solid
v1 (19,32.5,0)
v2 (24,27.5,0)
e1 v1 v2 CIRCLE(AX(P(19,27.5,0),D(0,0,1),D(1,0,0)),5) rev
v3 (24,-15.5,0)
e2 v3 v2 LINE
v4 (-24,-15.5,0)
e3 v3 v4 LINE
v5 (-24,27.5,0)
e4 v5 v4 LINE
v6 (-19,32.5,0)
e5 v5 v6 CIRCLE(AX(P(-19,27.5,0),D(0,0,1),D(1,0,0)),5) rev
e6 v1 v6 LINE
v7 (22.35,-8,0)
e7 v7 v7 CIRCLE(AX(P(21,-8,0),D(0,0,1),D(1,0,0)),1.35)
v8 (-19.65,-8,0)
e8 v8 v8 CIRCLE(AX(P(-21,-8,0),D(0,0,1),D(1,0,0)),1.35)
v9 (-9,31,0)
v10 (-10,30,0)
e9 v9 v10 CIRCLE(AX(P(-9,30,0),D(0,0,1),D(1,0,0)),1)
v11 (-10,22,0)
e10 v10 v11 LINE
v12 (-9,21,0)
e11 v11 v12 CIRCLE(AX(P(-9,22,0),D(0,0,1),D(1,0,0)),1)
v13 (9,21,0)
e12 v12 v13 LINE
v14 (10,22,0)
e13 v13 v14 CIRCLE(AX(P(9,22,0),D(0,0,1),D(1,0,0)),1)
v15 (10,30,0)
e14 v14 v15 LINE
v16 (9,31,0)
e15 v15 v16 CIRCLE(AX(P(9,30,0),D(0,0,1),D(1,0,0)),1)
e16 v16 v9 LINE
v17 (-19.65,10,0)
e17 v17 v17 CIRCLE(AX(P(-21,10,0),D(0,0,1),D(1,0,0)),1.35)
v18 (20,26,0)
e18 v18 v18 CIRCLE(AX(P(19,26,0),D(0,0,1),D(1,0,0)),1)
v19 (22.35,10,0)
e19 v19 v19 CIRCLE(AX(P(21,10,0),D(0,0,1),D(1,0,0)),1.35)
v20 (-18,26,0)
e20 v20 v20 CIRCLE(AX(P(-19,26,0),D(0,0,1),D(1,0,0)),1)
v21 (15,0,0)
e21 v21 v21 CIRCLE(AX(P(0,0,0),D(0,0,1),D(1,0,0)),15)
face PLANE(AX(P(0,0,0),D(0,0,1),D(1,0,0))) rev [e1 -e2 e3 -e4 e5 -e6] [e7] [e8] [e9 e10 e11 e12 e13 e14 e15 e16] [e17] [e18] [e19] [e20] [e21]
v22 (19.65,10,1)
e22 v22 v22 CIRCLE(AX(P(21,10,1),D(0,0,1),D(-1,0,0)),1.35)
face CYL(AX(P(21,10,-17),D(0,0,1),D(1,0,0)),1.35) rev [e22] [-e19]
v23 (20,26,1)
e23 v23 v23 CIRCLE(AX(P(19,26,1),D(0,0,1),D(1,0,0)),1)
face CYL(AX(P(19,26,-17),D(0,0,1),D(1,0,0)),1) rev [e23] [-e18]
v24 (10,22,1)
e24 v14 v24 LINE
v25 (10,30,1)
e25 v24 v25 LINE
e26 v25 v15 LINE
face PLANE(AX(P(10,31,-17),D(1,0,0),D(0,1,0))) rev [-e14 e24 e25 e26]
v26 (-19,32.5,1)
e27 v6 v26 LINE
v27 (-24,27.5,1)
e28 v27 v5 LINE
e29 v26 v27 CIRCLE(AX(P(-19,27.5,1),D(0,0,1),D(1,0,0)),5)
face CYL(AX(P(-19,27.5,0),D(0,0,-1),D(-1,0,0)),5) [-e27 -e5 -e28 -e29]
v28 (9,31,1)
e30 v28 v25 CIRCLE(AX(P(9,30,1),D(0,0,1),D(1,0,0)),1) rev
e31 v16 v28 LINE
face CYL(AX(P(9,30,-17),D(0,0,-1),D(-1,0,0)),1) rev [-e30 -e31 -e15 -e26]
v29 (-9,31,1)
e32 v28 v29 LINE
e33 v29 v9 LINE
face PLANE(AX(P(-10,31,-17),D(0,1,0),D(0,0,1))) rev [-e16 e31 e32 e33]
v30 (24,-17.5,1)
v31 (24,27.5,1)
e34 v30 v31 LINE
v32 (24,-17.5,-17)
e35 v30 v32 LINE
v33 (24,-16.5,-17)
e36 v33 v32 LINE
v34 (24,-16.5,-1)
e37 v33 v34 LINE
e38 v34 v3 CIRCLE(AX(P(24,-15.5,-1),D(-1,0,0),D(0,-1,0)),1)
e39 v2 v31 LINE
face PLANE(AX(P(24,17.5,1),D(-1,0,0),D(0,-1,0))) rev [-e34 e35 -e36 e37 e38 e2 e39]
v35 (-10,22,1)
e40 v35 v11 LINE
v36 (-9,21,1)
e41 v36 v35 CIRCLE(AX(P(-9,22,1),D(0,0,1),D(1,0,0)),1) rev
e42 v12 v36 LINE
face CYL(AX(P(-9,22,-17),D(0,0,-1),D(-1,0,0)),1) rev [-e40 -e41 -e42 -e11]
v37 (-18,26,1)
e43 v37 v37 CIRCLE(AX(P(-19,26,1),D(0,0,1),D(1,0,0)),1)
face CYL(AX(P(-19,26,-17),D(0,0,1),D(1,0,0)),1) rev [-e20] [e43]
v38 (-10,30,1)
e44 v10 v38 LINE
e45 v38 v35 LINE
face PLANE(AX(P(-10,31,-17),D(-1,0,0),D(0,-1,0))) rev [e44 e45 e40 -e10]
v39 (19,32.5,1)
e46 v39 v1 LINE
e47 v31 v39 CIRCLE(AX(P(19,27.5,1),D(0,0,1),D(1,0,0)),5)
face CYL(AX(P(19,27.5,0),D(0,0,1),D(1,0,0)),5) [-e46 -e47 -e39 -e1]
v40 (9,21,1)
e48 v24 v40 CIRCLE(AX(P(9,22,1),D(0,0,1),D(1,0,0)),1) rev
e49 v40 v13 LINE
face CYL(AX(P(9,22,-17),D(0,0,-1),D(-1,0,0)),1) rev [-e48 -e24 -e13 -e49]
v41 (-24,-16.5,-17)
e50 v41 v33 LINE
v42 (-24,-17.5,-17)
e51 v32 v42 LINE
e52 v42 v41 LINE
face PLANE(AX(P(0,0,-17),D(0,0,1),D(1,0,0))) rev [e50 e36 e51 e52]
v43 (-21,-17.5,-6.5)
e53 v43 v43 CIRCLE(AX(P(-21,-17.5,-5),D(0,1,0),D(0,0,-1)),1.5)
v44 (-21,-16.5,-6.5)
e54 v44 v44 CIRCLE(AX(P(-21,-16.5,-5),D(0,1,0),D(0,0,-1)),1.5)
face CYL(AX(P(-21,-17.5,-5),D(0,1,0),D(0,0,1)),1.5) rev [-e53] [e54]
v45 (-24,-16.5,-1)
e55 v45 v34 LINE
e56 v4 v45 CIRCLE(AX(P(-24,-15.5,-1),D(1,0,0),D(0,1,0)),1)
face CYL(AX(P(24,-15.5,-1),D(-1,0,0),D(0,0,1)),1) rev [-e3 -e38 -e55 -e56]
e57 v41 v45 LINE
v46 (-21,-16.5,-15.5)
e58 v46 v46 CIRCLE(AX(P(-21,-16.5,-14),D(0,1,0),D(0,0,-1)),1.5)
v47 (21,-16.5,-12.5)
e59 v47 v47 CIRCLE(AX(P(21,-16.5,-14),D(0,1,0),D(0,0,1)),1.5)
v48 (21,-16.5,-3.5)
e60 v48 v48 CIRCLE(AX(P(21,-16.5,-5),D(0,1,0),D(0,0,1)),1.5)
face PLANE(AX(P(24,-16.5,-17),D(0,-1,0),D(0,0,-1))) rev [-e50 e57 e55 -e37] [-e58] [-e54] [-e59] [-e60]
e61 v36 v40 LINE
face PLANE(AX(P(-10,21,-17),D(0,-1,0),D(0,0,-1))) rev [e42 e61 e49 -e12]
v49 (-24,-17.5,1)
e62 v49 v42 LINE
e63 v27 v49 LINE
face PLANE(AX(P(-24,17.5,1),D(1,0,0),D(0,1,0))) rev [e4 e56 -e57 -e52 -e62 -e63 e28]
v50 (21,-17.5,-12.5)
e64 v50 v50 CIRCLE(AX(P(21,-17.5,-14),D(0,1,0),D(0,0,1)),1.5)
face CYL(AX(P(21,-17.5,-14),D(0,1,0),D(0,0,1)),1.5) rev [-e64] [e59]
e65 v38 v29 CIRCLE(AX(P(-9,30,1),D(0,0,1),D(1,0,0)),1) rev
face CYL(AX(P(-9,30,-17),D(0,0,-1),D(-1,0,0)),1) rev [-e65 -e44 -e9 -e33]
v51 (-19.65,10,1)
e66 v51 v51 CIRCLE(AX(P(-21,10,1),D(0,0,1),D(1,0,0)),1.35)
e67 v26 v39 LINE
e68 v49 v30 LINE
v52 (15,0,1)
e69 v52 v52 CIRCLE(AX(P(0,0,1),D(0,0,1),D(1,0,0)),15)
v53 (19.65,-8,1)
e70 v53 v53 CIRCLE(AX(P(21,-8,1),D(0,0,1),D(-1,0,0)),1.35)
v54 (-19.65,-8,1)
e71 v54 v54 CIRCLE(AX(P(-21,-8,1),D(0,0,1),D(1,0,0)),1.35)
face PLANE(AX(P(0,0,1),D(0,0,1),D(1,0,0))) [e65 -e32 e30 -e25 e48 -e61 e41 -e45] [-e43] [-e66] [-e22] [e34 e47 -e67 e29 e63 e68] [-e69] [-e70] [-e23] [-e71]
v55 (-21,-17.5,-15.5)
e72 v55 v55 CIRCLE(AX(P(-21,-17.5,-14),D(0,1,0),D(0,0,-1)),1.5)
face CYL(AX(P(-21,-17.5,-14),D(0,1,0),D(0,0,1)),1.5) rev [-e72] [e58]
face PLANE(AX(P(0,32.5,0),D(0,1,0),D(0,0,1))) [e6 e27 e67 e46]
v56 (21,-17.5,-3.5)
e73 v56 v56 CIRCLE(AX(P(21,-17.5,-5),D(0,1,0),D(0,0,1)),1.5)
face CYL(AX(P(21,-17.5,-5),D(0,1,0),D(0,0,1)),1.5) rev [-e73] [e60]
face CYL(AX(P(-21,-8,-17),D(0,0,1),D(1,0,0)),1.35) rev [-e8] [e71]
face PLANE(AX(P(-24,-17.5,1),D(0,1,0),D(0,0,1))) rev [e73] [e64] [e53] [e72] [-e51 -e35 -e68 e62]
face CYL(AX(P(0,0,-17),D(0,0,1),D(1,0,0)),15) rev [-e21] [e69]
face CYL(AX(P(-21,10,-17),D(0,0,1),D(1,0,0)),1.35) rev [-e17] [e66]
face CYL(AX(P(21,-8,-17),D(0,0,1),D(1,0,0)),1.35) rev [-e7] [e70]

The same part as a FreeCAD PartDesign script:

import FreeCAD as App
import Part
import Sketcher
Q = App.Units.Quantity


def edges_at(feature, points):
    """Names of the edges that pass closest to the given points."""
    edges = feature.Shape.Edges
    near = lambda p: min(range(len(edges)), key=lambda i: edges[i].distToShape(Part.Vertex(*p))[0])
    return sorted({f"Edge{near(p) + 1}" for p in points})

doc = App.newDocument("Part")
body = doc.addObject("PartDesign::Body", "Body")

# Sketch on XY plane
sketch1 = body.newObject("Sketcher::SketchObject", "Sketch")
sketch1.AttachmentSupport = (doc.getObject("XY_Plane"), [""])
sketch1.MapMode = "FlatFace"
sketch1.addGeometry(Part.LineSegment(App.Vector(-24, 17.5, 0), App.Vector(-24, -17.5, 0)), False)
sketch1.addGeometry(Part.LineSegment(App.Vector(-24, -17.5, 0), App.Vector(24, -17.5, 0)), False)
sketch1.addGeometry(Part.LineSegment(App.Vector(24, -17.5, 0), App.Vector(24, 17.5, 0)), False)
sketch1.addGeometry(Part.LineSegment(App.Vector(24, 17.5, 0), App.Vector(-24, 17.5, 0)), False)
sketch1.addConstraint(Sketcher.Constraint("Coincident", 0, 2, 1, 1))
sketch1.addConstraint(Sketcher.Constraint("Coincident", 1, 2, 2, 1))
sketch1.addConstraint(Sketcher.Constraint("Coincident", 2, 2, 3, 1))
sketch1.addConstraint(Sketcher.Constraint("Coincident", 3, 2, 0, 1))
sketch1.addConstraint(Sketcher.Constraint("Vertical", 0))
sketch1.addConstraint(Sketcher.Constraint("Horizontal", 1))
sketch1.addConstraint(Sketcher.Constraint("Vertical", 2))
sketch1.addConstraint(Sketcher.Constraint("Horizontal", 3))
sketch1.addConstraint(Sketcher.Constraint("Symmetric", 0, 2, 2, 2, -1, 1))
sketch1.addConstraint(Sketcher.Constraint("DistanceX", 1, 1, 1, 2, Q("48 mm")))
sketch1.addConstraint(Sketcher.Constraint("DistanceY", 0, 2, 0, 1, Q("35 mm")))
pad1 = body.newObject("PartDesign::Pad", "Pad")
pad1.Profile = sketch1
pad1.Length = 1

# Sketch on XY plane
sketch2 = body.newObject("Sketcher::SketchObject", "Sketch001")
sketch2.AttachmentSupport = (doc.getObject("XY_Plane"), [""])
sketch2.MapMode = "FlatFace"
sketch2.addGeometry(Part.LineSegment(App.Vector(24, -16.5, 0), App.Vector(24, -17.5, 0)), False)
sketch2.addGeometry(Part.LineSegment(App.Vector(24, -17.5, 0), App.Vector(-24, -17.5, 0)), False)
sketch2.addGeometry(Part.LineSegment(App.Vector(-24, -17.5, 0), App.Vector(-24, -16.5, 0)), False)
sketch2.addGeometry(Part.LineSegment(App.Vector(-24, -16.5, 0), App.Vector(24, -16.5, 0)), False)
sketch2.addConstraint(Sketcher.Constraint("Coincident", 0, 2, 1, 1))
sketch2.addConstraint(Sketcher.Constraint("Coincident", 1, 2, 2, 1))
sketch2.addConstraint(Sketcher.Constraint("Coincident", 2, 2, 3, 1))
sketch2.addConstraint(Sketcher.Constraint("Coincident", 3, 2, 0, 1))
sketch2.addConstraint(Sketcher.Constraint("Vertical", 0))
sketch2.addConstraint(Sketcher.Constraint("Horizontal", 1))
sketch2.addConstraint(Sketcher.Constraint("Vertical", 2))
sketch2.addConstraint(Sketcher.Constraint("Horizontal", 3))
sketch2.addConstraint(Sketcher.Constraint("DistanceX", 1, 2, 1, 1, Q("48 mm")))
sketch2.addConstraint(Sketcher.Constraint("DistanceY", 0, 2, 0, 1, Q("1 mm")))
sketch2.addConstraint(Sketcher.Constraint("DistanceX", -1, 1, 0, 2, Q("24 mm")))
sketch2.addConstraint(Sketcher.Constraint("DistanceY", 0, 2, -1, 1, Q("17.5 mm")))
pad2 = body.newObject("PartDesign::Pad", "Pad001")
pad2.Profile = sketch2
pad2.Length = 17
pad2.Reversed = True
doc.recompute()

fillet = body.newObject("PartDesign::Fillet", "Fillet")
fillet.Base = (pad2, edges_at(pad2, [(0, -16.5, 0)]))
fillet.Radius = 1

# Sketch on XY plane
sketch3 = body.newObject("Sketcher::SketchObject", "Sketch002")
sketch3.AttachmentSupport = (doc.getObject("XY_Plane"), [""])
sketch3.MapMode = "FlatFace"
sketch3.AttachmentOffset = App.Placement(App.Vector(0, 0, 1), App.Rotation())
sketch3.addGeometry(Part.Circle(App.Vector(-21, 10, 0), App.Vector(0, 0, 1), 1.35), False)
sketch3.addGeometry(Part.Circle(App.Vector(0, 0, 0), App.Vector(0, 0, 1), 15), False)
sketch3.addGeometry(Part.Circle(App.Vector(-21, -8, 0), App.Vector(0, 0, 1), 1.35), False)
sketch3.addGeometry(Part.Circle(App.Vector(21, -8, 0), App.Vector(0, 0, 1), 1.35), False)
sketch3.addGeometry(Part.Circle(App.Vector(21, 10, 0), App.Vector(0, 0, 1), 1.35), False)
sketch3.addConstraint(Sketcher.Constraint("Coincident", 1, 3, -1, 1))
sketch3.addConstraint(Sketcher.Constraint("Equal", 0, 2))
sketch3.addConstraint(Sketcher.Constraint("Equal", 2, 3))
sketch3.addConstraint(Sketcher.Constraint("Equal", 3, 4))
sketch3.addConstraint(Sketcher.Constraint("Symmetric", 2, 3, 3, 3, -2))
sketch3.addConstraint(Sketcher.Constraint("Symmetric", 0, 3, 4, 3, -2))
sketch3.addConstraint(Sketcher.Constraint("Vertical", 0, 3, 2, 3))
sketch3.addConstraint(Sketcher.Constraint("Diameter", 1, Q("30 mm")))
sketch3.addConstraint(Sketcher.Constraint("Diameter", 0, Q("2.7 mm")))
sketch3.addConstraint(Sketcher.Constraint("DistanceX", 0, 3, -1, 1, Q("21 mm")))
sketch3.addConstraint(Sketcher.Constraint("DistanceY", -1, 1, 0, 3, Q("10 mm")))
sketch3.addConstraint(Sketcher.Constraint("DistanceY", 2, 3, -1, 1, Q("8 mm")))
pocket1 = body.newObject("PartDesign::Pocket", "Pocket")
pocket1.Profile = sketch3
pocket1.Type = "ThroughAll"

# Sketch on XZ plane
sketch4 = body.newObject("Sketcher::SketchObject", "Sketch003")
sketch4.AttachmentSupport = (doc.getObject("XZ_Plane"), [""])
sketch4.MapMode = "FlatFace"
sketch4.AttachmentOffset = App.Placement(App.Vector(0, 0, -17.5), App.Rotation())
sketch4.addGeometry(Part.LineSegment(App.Vector(-24, 0, 0), App.Vector(-24, 1, 0)), False)
sketch4.addGeometry(Part.LineSegment(App.Vector(-24, 1, 0), App.Vector(24, 1, 0)), False)
sketch4.addGeometry(Part.LineSegment(App.Vector(24, 1, 0), App.Vector(24, 0, 0)), False)
sketch4.addGeometry(Part.LineSegment(App.Vector(24, 0, 0), App.Vector(-24, 0, 0)), False)
sketch4.addConstraint(Sketcher.Constraint("Coincident", 0, 2, 1, 1))
sketch4.addConstraint(Sketcher.Constraint("Coincident", 1, 2, 2, 1))
sketch4.addConstraint(Sketcher.Constraint("Coincident", 2, 2, 3, 1))
sketch4.addConstraint(Sketcher.Constraint("Coincident", 3, 2, 0, 1))
sketch4.addConstraint(Sketcher.Constraint("Vertical", 0))
sketch4.addConstraint(Sketcher.Constraint("Horizontal", 1))
sketch4.addConstraint(Sketcher.Constraint("Vertical", 2))
sketch4.addConstraint(Sketcher.Constraint("Horizontal", 3))
sketch4.addConstraint(Sketcher.Constraint("Symmetric", 2, 2, 3, 2, -1, 1))
sketch4.addConstraint(Sketcher.Constraint("DistanceX", 1, 1, 1, 2, Q("48 mm")))
sketch4.addConstraint(Sketcher.Constraint("DistanceY", 0, 1, 0, 2, Q("1 mm")))
pad3 = body.newObject("PartDesign::Pad", "Pad002")
pad3.Profile = sketch4
pad3.Length = 15
pad3.Reversed = True

# Sketch on XY plane
sketch5 = body.newObject("Sketcher::SketchObject", "Sketch004")
sketch5.AttachmentSupport = (doc.getObject("XY_Plane"), [""])
sketch5.MapMode = "FlatFace"
sketch5.AttachmentOffset = App.Placement(App.Vector(0, 0, 1), App.Rotation())
sketch5.addGeometry(Part.Circle(App.Vector(-19, 26, 0), App.Vector(0, 0, 1), 1), False)
sketch5.addGeometry(Part.Circle(App.Vector(19, 26, 0), App.Vector(0, 0, 1), 1), False)
sketch5.addGeometry(Part.LineSegment(App.Vector(-10, 31, 0), App.Vector(-10, 21, 0)), False)
sketch5.addGeometry(Part.LineSegment(App.Vector(-10, 21, 0), App.Vector(10, 21, 0)), False)
sketch5.addGeometry(Part.LineSegment(App.Vector(10, 21, 0), App.Vector(10, 31, 0)), False)
sketch5.addGeometry(Part.LineSegment(App.Vector(10, 31, 0), App.Vector(-10, 31, 0)), False)
sketch5.addConstraint(Sketcher.Constraint("Coincident", 2, 2, 3, 1))
sketch5.addConstraint(Sketcher.Constraint("Coincident", 3, 2, 4, 1))
sketch5.addConstraint(Sketcher.Constraint("Coincident", 4, 2, 5, 1))
sketch5.addConstraint(Sketcher.Constraint("Coincident", 5, 2, 2, 1))
sketch5.addConstraint(Sketcher.Constraint("Vertical", 2))
sketch5.addConstraint(Sketcher.Constraint("Horizontal", 3))
sketch5.addConstraint(Sketcher.Constraint("Vertical", 4))
sketch5.addConstraint(Sketcher.Constraint("Horizontal", 5))
sketch5.addConstraint(Sketcher.Constraint("Equal", 0, 1))
sketch5.addConstraint(Sketcher.Constraint("Symmetric", 0, 3, 1, 3, -2))
sketch5.addConstraint(Sketcher.Constraint("Diameter", 0, Q("2 mm")))
sketch5.addConstraint(Sketcher.Constraint("DistanceX", 3, 1, 3, 2, Q("20 mm")))
sketch5.addConstraint(Sketcher.Constraint("DistanceY", 2, 2, 2, 1, Q("10 mm")))
sketch5.addConstraint(Sketcher.Constraint("DistanceX", 0, 3, -1, 1, Q("19 mm")))
sketch5.addConstraint(Sketcher.Constraint("DistanceY", -1, 1, 0, 3, Q("26 mm")))
sketch5.addConstraint(Sketcher.Constraint("DistanceX", 2, 2, -1, 1, Q("10 mm")))
sketch5.addConstraint(Sketcher.Constraint("DistanceY", -1, 1, 2, 2, Q("21 mm")))
pocket2 = body.newObject("PartDesign::Pocket", "Pocket001")
pocket2.Profile = sketch5
pocket2.Type = "ThroughAll"
doc.recompute()

fillet2 = body.newObject("PartDesign::Fillet", "Fillet001")
fillet2.Base = (pocket2, edges_at(pocket2, [
    (10, 31, 0.5),
    (10, 21, 0.5),
    (-10, 21, 0.5),
    (-10, 31, 0.5),
]))
fillet2.Radius = 1

# Sketch on XZ plane
sketch6 = body.newObject("Sketcher::SketchObject", "Sketch005")
sketch6.AttachmentSupport = (doc.getObject("XZ_Plane"), [""])
sketch6.MapMode = "FlatFace"
sketch6.AttachmentOffset = App.Placement(App.Vector(0, 0, 16.5), App.Rotation())
sketch6.addGeometry(Part.Circle(App.Vector(21, -5, 0), App.Vector(0, 0, 1), 1.5), False)
sketch6.addGeometry(Part.Circle(App.Vector(21, -14, 0), App.Vector(0, 0, 1), 1.5), False)
sketch6.addGeometry(Part.Circle(App.Vector(-21, -5, 0), App.Vector(0, 0, 1), 1.5), False)
sketch6.addGeometry(Part.Circle(App.Vector(-21, -14, 0), App.Vector(0, 0, 1), 1.5), False)
sketch6.addConstraint(Sketcher.Constraint("Equal", 0, 1))
sketch6.addConstraint(Sketcher.Constraint("Equal", 1, 2))
sketch6.addConstraint(Sketcher.Constraint("Equal", 2, 3))
sketch6.addConstraint(Sketcher.Constraint("Symmetric", 0, 3, 2, 3, -2))
sketch6.addConstraint(Sketcher.Constraint("Symmetric", 1, 3, 3, 3, -2))
sketch6.addConstraint(Sketcher.Constraint("Vertical", 0, 3, 1, 3))
sketch6.addConstraint(Sketcher.Constraint("Diameter", 0, Q("3 mm")))
sketch6.addConstraint(Sketcher.Constraint("DistanceX", -1, 1, 0, 3, Q("21 mm")))
sketch6.addConstraint(Sketcher.Constraint("DistanceY", 0, 3, -1, 1, Q("5 mm")))
sketch6.addConstraint(Sketcher.Constraint("DistanceY", 1, 3, -1, 1, Q("14 mm")))
pocket3 = body.newObject("PartDesign::Pocket", "Pocket002")
pocket3.Profile = sketch6
pocket3.Type = "ThroughAll"
pocket3.Reversed = True
doc.recompute()

fillet3 = body.newObject("PartDesign::Fillet", "Fillet002")
fillet3.Base = (pocket3, edges_at(pocket3, [(24, 32.5, 0.5), (-24, 32.5, 0.5)]))
fillet3.Radius = 5

doc.recompute()
